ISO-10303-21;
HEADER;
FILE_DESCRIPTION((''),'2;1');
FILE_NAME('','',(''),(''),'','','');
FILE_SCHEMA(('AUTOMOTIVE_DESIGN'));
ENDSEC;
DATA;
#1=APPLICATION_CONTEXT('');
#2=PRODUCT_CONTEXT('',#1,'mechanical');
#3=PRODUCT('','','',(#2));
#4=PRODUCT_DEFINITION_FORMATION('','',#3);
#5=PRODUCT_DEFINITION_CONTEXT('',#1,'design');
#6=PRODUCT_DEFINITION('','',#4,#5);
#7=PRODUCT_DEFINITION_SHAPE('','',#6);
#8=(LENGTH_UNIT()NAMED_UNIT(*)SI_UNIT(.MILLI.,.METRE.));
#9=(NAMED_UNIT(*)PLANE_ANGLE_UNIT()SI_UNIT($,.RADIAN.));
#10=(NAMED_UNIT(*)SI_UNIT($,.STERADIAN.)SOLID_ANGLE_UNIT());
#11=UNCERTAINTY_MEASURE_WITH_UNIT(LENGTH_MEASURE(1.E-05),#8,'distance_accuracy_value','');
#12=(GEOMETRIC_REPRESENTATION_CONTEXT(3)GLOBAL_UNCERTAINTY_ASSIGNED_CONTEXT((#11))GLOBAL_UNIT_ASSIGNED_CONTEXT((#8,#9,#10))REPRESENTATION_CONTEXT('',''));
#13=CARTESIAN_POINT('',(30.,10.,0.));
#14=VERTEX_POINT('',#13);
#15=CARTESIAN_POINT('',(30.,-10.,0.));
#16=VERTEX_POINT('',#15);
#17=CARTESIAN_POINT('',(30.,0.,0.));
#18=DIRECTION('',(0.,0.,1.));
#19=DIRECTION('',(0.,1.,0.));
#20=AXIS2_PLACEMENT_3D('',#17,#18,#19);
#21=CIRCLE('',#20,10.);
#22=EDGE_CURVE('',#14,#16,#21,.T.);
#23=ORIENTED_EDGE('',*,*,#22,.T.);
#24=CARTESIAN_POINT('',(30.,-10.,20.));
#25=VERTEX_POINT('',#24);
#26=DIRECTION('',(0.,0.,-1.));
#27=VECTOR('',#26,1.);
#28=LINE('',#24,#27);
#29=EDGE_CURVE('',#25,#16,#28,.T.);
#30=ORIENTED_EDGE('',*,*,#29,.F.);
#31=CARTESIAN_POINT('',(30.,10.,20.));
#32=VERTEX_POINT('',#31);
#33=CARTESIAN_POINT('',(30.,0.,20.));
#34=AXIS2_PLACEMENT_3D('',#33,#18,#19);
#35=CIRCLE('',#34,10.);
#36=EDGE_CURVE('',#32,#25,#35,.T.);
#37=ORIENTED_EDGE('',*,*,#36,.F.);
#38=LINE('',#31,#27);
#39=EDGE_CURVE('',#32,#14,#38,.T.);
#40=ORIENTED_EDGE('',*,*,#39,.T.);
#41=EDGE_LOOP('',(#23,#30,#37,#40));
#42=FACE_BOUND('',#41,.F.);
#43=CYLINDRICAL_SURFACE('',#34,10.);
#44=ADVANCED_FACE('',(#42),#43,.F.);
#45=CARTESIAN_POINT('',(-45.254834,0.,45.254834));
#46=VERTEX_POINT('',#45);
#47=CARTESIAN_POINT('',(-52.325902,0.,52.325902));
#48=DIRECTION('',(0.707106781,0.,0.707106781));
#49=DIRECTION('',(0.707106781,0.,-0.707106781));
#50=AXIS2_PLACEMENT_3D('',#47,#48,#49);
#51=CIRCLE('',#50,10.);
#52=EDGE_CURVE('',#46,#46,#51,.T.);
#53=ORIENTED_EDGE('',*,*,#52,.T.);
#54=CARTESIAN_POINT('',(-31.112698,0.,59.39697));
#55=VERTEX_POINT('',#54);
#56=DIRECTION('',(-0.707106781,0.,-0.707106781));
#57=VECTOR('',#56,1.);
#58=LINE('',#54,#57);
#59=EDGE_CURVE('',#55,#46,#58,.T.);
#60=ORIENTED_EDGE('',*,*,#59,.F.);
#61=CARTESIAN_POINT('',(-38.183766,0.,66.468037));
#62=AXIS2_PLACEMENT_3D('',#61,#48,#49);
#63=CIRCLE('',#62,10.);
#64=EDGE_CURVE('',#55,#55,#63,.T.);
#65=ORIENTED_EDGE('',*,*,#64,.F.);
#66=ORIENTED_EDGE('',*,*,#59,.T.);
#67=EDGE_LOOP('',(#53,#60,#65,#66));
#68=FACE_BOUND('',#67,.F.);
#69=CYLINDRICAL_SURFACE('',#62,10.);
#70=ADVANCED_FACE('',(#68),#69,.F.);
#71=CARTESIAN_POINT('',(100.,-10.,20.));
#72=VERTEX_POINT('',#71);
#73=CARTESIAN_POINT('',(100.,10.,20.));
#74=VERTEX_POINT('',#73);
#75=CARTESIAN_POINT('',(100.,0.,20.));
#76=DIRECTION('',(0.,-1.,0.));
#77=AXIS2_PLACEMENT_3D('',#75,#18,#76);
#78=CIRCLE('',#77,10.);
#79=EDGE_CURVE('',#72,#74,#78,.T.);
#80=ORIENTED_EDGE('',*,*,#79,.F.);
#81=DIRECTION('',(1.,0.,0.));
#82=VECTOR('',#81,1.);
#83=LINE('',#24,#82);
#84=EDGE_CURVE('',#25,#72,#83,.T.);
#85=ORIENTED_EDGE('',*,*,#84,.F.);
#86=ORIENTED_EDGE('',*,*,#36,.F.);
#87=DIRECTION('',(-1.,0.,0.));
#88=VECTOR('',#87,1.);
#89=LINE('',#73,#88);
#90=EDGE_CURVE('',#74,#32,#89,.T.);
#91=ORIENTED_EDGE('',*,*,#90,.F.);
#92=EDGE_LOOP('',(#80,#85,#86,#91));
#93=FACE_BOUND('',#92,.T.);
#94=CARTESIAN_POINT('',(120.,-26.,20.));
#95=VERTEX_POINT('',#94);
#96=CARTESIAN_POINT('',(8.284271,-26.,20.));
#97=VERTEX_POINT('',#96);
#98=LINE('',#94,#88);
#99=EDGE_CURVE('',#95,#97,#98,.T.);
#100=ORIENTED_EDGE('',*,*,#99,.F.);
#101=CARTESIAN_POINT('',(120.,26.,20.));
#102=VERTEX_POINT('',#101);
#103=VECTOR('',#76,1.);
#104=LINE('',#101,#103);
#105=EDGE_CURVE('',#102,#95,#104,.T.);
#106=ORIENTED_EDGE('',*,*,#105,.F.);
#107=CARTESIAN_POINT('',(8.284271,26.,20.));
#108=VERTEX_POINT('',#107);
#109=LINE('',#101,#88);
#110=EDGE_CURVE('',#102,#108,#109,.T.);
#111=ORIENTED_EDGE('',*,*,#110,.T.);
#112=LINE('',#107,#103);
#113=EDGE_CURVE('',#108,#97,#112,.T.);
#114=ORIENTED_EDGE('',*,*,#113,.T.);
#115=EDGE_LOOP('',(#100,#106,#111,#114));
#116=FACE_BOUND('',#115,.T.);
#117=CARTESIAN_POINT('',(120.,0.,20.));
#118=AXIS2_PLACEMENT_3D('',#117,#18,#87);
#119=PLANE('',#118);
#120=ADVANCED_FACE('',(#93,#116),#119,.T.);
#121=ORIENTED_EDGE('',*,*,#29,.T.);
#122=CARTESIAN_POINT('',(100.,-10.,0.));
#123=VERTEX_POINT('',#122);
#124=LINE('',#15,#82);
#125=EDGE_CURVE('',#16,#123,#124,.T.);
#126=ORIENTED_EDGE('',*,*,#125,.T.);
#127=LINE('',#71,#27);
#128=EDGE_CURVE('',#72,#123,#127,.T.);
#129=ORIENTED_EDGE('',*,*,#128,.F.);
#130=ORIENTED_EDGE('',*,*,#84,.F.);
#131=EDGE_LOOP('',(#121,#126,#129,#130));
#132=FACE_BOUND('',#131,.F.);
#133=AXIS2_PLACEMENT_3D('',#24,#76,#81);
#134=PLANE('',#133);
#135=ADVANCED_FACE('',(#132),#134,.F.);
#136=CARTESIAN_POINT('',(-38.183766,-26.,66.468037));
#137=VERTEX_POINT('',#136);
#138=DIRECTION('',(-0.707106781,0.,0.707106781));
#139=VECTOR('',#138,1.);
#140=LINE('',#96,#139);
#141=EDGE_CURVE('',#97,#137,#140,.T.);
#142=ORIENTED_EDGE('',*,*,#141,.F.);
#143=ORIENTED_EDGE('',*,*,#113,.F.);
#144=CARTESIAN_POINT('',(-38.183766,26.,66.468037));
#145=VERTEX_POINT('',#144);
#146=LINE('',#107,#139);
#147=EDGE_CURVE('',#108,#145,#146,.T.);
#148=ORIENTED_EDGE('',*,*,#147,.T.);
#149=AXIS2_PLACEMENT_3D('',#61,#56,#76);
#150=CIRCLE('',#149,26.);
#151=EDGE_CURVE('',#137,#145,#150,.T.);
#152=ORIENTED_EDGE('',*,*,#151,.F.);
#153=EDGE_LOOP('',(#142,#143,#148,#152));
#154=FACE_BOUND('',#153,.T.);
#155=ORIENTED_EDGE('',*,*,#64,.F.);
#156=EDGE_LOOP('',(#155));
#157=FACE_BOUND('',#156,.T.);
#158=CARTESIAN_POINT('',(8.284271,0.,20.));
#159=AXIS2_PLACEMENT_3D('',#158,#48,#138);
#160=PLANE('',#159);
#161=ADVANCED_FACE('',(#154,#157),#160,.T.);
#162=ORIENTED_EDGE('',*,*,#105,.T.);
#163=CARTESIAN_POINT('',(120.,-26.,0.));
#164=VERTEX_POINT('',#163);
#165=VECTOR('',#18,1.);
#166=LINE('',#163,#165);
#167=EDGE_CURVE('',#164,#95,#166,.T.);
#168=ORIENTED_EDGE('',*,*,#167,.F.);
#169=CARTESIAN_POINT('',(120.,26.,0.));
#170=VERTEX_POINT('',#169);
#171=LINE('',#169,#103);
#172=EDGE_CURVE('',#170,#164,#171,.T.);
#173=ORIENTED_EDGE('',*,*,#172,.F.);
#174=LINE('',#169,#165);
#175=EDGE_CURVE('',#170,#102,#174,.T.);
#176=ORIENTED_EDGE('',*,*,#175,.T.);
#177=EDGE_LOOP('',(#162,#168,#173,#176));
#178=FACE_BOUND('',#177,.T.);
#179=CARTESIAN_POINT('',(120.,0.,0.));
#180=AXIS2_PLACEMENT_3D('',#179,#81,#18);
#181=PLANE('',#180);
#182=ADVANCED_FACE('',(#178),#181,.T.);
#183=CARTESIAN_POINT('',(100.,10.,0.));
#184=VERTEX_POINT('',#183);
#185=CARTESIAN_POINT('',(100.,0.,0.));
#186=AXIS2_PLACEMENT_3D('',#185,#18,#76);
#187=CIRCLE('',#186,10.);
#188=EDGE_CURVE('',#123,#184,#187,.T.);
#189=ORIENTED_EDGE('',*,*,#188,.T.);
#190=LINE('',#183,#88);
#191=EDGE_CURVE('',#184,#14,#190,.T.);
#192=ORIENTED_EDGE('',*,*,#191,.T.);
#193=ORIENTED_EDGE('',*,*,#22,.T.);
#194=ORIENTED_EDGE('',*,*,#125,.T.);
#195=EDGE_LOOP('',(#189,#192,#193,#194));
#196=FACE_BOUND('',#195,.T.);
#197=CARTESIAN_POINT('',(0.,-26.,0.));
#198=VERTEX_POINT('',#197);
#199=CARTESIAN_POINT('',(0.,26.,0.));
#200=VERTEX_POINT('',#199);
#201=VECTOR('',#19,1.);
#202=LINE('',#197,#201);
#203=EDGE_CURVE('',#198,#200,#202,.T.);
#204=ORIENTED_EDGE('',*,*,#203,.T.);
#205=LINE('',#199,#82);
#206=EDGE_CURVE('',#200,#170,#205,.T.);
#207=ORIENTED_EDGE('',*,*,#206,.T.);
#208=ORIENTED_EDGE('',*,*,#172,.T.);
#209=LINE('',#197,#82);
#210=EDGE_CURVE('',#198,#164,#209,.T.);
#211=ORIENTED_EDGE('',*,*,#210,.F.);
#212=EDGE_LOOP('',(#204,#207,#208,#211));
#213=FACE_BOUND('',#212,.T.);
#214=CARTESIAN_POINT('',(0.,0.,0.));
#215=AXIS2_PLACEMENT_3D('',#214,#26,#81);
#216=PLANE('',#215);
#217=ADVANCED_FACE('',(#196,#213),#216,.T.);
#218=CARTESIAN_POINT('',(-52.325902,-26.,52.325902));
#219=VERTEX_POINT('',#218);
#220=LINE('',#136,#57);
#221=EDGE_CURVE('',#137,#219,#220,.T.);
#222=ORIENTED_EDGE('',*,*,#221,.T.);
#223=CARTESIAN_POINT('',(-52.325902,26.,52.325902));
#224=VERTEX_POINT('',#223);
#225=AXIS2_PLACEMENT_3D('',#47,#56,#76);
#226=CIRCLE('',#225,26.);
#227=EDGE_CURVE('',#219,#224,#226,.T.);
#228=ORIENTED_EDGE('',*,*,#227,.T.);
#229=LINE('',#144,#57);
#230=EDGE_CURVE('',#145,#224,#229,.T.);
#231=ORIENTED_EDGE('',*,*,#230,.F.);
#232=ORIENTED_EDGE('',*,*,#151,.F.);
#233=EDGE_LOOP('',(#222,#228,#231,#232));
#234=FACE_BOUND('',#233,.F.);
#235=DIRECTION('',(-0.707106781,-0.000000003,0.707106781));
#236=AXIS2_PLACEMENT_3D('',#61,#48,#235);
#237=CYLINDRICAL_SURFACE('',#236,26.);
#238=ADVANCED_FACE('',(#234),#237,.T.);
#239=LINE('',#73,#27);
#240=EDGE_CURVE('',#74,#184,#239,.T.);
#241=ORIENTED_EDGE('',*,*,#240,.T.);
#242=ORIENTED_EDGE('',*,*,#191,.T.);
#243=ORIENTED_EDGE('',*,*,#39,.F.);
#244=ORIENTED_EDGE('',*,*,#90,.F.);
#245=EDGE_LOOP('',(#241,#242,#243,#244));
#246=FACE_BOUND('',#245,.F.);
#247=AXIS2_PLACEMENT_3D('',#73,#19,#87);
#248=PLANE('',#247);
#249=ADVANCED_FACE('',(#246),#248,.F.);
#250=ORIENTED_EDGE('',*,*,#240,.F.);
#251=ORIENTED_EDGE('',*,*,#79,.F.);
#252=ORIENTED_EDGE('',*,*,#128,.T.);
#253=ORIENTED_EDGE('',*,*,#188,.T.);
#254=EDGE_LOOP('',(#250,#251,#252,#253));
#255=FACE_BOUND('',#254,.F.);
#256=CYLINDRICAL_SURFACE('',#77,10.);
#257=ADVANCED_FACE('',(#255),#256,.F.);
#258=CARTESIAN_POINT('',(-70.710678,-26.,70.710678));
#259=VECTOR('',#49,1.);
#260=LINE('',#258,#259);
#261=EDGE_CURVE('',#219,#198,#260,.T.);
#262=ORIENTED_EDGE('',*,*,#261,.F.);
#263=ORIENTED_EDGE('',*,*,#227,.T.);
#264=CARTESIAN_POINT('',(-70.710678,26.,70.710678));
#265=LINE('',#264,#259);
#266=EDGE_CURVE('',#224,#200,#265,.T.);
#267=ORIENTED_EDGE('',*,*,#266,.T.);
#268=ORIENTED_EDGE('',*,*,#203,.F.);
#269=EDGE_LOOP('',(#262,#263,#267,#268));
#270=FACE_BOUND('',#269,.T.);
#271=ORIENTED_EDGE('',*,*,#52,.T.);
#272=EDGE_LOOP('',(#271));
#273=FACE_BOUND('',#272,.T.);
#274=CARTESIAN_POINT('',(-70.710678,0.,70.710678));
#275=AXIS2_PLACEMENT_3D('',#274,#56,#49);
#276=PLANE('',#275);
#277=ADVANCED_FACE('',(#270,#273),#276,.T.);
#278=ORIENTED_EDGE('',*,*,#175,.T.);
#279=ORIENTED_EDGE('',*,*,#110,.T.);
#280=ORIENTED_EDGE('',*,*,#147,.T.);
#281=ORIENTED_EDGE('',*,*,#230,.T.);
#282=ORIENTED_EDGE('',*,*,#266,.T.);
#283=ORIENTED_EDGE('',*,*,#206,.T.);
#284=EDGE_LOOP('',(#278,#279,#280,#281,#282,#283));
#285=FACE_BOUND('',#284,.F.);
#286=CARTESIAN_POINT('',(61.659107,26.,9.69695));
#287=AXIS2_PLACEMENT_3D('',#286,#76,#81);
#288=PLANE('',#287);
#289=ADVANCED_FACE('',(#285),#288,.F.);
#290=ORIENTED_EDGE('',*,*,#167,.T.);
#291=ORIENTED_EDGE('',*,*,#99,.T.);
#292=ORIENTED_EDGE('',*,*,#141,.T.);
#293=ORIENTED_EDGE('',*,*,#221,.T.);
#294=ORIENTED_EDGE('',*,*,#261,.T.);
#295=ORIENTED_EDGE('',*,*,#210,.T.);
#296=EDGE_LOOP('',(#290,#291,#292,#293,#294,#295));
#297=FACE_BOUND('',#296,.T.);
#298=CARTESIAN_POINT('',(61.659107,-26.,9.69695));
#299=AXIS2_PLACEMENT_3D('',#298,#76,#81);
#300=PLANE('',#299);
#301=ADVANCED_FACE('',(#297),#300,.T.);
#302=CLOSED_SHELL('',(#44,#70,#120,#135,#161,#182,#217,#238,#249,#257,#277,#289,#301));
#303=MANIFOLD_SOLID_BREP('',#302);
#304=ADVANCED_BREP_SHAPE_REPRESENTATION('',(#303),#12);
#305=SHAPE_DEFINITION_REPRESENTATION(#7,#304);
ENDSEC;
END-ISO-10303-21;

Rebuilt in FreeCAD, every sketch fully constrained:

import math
import FreeCAD as App
import Part
import Sketcher
Q = App.Units.Quantity

doc = App.newDocument("Part")
body = doc.addObject("PartDesign::Body", "Body")

# Sketch on XZ plane
sketch1 = body.newObject("Sketcher::SketchObject", "Sketch")
sketch1.AttachmentSupport = (doc.getObject("XZ_Plane"), [""])
sketch1.MapMode = "FlatFace"
sketch1.addGeometry(Part.LineSegment(App.Vector(0, 0, 0), App.Vector(120, 0, 0)), False)
sketch1.addGeometry(Part.LineSegment(App.Vector(120, 0, 0), App.Vector(120, 20, 0)), False)
sketch1.addGeometry(Part.LineSegment(App.Vector(120, 20, 0), App.Vector(8, 20, 0)), False)
sketch1.addGeometry(Part.LineSegment(App.Vector(8, 20, 0), App.Vector(-57, 85, 0)), False)
sketch1.addGeometry(Part.LineSegment(App.Vector(-57, 85, 0), App.Vector(-71, 71, 0)), False)
sketch1.addGeometry(Part.LineSegment(App.Vector(-71, 71, 0), App.Vector(0, 0, 0)), False)
sketch1.addConstraint(Sketcher.Constraint("Coincident", 0, 2, 1, 1))
sketch1.addConstraint(Sketcher.Constraint("Coincident", 1, 2, 2, 1))
sketch1.addConstraint(Sketcher.Constraint("Coincident", 2, 2, 3, 1))
sketch1.addConstraint(Sketcher.Constraint("Coincident", 3, 2, 4, 1))
sketch1.addConstraint(Sketcher.Constraint("Coincident", 4, 2, 5, 1))
sketch1.addConstraint(Sketcher.Constraint("Coincident", 5, 2, 0, 1))
sketch1.addConstraint(Sketcher.Constraint("Horizontal", 0))
sketch1.addConstraint(Sketcher.Constraint("Vertical", 1))
sketch1.addConstraint(Sketcher.Constraint("Horizontal", 2))
sketch1.addConstraint(Sketcher.Constraint("Coincident", 5, 2, -1, 1))
sketch1.addConstraint(Sketcher.Constraint("Perpendicular", 3, 4))
sketch1.addConstraint(Sketcher.Constraint("Perpendicular", 4, 5))
sketch1.addConstraint(Sketcher.Constraint("DistanceX", 0, 1, 0, 2, Q("120 mm")))
sketch1.addConstraint(Sketcher.Constraint("DistanceY", 1, 1, 1, 2, Q("20 mm")))
sketch1.addConstraint(Sketcher.Constraint("Angle", 3, Q("135 deg")))
sketch1.addConstraint(Sketcher.Constraint("Distance", 4, Q("20 mm")))
sketch1.addConstraint(Sketcher.Constraint("Distance", 5, Q("100 mm")))
pad1 = body.newObject("PartDesign::Pad", "Pad")
pad1.Profile = sketch1
pad1.Length = 52
pad1.Midplane = True

# Sketch on XY plane
sketch2 = body.newObject("Sketcher::SketchObject", "Sketch001")
sketch2.AttachmentSupport = (doc.getObject("XY_Plane"), [""])
sketch2.MapMode = "FlatFace"
sketch2.AttachmentOffset = App.Placement(App.Vector(0, 0, 20), App.Rotation())
sketch2.addGeometry(Part.ArcOfCircle(Part.Circle(App.Vector(100, 0, 0), App.Vector(0, 0, 1), 10), math.radians(-90), math.radians(90)), False)
sketch2.addGeometry(Part.LineSegment(App.Vector(100, 10, 0), App.Vector(30, 10, 0)), False)
sketch2.addGeometry(Part.ArcOfCircle(Part.Circle(App.Vector(30, 0, 0), App.Vector(0, 0, 1), 10), math.radians(90), math.radians(270)), False)
sketch2.addGeometry(Part.LineSegment(App.Vector(30, -10, 0), App.Vector(100, -10, 0)), False)
sketch2.addConstraint(Sketcher.Constraint("Tangent", 0, 2, 1, 1))
sketch2.addConstraint(Sketcher.Constraint("Tangent", 1, 2, 2, 1))
sketch2.addConstraint(Sketcher.Constraint("Tangent", 2, 2, 3, 1))
sketch2.addConstraint(Sketcher.Constraint("Tangent", 3, 2, 0, 1))
sketch2.addConstraint(Sketcher.Constraint("Horizontal", 1))
sketch2.addConstraint(Sketcher.Constraint("Horizontal", 3))
sketch2.addConstraint(Sketcher.Constraint("PointOnObject", 0, 3, -1))
sketch2.addConstraint(Sketcher.Constraint("Radius", 0, Q("10 mm")))
sketch2.addConstraint(Sketcher.Constraint("DistanceX", 1, 2, 1, 1, Q("70 mm")))
sketch2.addConstraint(Sketcher.Constraint("DistanceX", -1, 1, 0, 3, Q("100 mm")))
pocket1 = body.newObject("PartDesign::Pocket", "Pocket")
pocket1.Profile = sketch2
pocket1.Type = "ThroughAll"

# Sketch on an angled plane
sketch3 = body.newObject("Sketcher::SketchObject", "Sketch002")
sketch3.Placement = App.Placement(App.Vector(14.142136, 0, 14.142136), App.Rotation(App.Vector(0.707106781, 0, -0.707106781), App.Vector(0, 0.999999999, 0), App.Vector(0.707106781, 0, 0.707106781), "ZXY"))
sketch3.addGeometry(Part.Circle(App.Vector(-74, 0, 0), App.Vector(0, 0, 1), 10), False)
sketch3.addGeometry(Part.ArcOfCircle(Part.Circle(App.Vector(-74, 0, 0), App.Vector(0, 0, 1), 26), math.radians(90), math.radians(180)), False)
sketch3.addGeometry(Part.LineSegment(App.Vector(-74, 26, 0), App.Vector(-100, 26, 0)), False)
sketch3.addGeometry(Part.LineSegment(App.Vector(-100, 26, 0), App.Vector(-100, 0, 0)), False)
sketch3.addGeometry(Part.ArcOfCircle(Part.Circle(App.Vector(-74, 0, 0), App.Vector(0, 0, 1), 26), math.radians(-180), math.radians(-90)), False)
sketch3.addGeometry(Part.LineSegment(App.Vector(-100, 0, 0), App.Vector(-100, -26, 0)), False)
sketch3.addGeometry(Part.LineSegment(App.Vector(-100, -26, 0), App.Vector(-74, -26, 0)), False)
sketch3.addConstraint(Sketcher.Constraint("Tangent", 1, 1, 2, 1))
sketch3.addConstraint(Sketcher.Constraint("Coincident", 2, 2, 3, 1))
sketch3.addConstraint(Sketcher.Constraint("Tangent", 3, 2, 1, 2))
sketch3.addConstraint(Sketcher.Constraint("Tangent", 4, 1, 5, 1))
sketch3.addConstraint(Sketcher.Constraint("Coincident", 5, 2, 6, 1))
sketch3.addConstraint(Sketcher.Constraint("Tangent", 6, 2, 4, 2))
sketch3.addConstraint(Sketcher.Constraint("Horizontal", 2))
sketch3.addConstraint(Sketcher.Constraint("Vertical", 3))
sketch3.addConstraint(Sketcher.Constraint("Vertical", 5))
sketch3.addConstraint(Sketcher.Constraint("Horizontal", 6))
sketch3.addConstraint(Sketcher.Constraint("Coincident", 1, 3, 0, 3))
sketch3.addConstraint(Sketcher.Constraint("Coincident", 4, 3, 0, 3))
sketch3.addConstraint(Sketcher.Constraint("Equal", 1, 4))
sketch3.addConstraint(Sketcher.Constraint("PointOnObject", 0, 3, -1))
sketch3.addConstraint(Sketcher.Constraint("Diameter", 0, Q("20 mm")))
sketch3.addConstraint(Sketcher.Constraint("Radius", 1, Q("26 mm")))
sketch3.addConstraint(Sketcher.Constraint("DistanceX", 0, 3, -1, 1, Q("74 mm")))
pocket2 = body.newObject("PartDesign::Pocket", "Pocket001")
pocket2.Profile = sketch3
pocket2.Type = "ThroughAll"

doc.recompute()
